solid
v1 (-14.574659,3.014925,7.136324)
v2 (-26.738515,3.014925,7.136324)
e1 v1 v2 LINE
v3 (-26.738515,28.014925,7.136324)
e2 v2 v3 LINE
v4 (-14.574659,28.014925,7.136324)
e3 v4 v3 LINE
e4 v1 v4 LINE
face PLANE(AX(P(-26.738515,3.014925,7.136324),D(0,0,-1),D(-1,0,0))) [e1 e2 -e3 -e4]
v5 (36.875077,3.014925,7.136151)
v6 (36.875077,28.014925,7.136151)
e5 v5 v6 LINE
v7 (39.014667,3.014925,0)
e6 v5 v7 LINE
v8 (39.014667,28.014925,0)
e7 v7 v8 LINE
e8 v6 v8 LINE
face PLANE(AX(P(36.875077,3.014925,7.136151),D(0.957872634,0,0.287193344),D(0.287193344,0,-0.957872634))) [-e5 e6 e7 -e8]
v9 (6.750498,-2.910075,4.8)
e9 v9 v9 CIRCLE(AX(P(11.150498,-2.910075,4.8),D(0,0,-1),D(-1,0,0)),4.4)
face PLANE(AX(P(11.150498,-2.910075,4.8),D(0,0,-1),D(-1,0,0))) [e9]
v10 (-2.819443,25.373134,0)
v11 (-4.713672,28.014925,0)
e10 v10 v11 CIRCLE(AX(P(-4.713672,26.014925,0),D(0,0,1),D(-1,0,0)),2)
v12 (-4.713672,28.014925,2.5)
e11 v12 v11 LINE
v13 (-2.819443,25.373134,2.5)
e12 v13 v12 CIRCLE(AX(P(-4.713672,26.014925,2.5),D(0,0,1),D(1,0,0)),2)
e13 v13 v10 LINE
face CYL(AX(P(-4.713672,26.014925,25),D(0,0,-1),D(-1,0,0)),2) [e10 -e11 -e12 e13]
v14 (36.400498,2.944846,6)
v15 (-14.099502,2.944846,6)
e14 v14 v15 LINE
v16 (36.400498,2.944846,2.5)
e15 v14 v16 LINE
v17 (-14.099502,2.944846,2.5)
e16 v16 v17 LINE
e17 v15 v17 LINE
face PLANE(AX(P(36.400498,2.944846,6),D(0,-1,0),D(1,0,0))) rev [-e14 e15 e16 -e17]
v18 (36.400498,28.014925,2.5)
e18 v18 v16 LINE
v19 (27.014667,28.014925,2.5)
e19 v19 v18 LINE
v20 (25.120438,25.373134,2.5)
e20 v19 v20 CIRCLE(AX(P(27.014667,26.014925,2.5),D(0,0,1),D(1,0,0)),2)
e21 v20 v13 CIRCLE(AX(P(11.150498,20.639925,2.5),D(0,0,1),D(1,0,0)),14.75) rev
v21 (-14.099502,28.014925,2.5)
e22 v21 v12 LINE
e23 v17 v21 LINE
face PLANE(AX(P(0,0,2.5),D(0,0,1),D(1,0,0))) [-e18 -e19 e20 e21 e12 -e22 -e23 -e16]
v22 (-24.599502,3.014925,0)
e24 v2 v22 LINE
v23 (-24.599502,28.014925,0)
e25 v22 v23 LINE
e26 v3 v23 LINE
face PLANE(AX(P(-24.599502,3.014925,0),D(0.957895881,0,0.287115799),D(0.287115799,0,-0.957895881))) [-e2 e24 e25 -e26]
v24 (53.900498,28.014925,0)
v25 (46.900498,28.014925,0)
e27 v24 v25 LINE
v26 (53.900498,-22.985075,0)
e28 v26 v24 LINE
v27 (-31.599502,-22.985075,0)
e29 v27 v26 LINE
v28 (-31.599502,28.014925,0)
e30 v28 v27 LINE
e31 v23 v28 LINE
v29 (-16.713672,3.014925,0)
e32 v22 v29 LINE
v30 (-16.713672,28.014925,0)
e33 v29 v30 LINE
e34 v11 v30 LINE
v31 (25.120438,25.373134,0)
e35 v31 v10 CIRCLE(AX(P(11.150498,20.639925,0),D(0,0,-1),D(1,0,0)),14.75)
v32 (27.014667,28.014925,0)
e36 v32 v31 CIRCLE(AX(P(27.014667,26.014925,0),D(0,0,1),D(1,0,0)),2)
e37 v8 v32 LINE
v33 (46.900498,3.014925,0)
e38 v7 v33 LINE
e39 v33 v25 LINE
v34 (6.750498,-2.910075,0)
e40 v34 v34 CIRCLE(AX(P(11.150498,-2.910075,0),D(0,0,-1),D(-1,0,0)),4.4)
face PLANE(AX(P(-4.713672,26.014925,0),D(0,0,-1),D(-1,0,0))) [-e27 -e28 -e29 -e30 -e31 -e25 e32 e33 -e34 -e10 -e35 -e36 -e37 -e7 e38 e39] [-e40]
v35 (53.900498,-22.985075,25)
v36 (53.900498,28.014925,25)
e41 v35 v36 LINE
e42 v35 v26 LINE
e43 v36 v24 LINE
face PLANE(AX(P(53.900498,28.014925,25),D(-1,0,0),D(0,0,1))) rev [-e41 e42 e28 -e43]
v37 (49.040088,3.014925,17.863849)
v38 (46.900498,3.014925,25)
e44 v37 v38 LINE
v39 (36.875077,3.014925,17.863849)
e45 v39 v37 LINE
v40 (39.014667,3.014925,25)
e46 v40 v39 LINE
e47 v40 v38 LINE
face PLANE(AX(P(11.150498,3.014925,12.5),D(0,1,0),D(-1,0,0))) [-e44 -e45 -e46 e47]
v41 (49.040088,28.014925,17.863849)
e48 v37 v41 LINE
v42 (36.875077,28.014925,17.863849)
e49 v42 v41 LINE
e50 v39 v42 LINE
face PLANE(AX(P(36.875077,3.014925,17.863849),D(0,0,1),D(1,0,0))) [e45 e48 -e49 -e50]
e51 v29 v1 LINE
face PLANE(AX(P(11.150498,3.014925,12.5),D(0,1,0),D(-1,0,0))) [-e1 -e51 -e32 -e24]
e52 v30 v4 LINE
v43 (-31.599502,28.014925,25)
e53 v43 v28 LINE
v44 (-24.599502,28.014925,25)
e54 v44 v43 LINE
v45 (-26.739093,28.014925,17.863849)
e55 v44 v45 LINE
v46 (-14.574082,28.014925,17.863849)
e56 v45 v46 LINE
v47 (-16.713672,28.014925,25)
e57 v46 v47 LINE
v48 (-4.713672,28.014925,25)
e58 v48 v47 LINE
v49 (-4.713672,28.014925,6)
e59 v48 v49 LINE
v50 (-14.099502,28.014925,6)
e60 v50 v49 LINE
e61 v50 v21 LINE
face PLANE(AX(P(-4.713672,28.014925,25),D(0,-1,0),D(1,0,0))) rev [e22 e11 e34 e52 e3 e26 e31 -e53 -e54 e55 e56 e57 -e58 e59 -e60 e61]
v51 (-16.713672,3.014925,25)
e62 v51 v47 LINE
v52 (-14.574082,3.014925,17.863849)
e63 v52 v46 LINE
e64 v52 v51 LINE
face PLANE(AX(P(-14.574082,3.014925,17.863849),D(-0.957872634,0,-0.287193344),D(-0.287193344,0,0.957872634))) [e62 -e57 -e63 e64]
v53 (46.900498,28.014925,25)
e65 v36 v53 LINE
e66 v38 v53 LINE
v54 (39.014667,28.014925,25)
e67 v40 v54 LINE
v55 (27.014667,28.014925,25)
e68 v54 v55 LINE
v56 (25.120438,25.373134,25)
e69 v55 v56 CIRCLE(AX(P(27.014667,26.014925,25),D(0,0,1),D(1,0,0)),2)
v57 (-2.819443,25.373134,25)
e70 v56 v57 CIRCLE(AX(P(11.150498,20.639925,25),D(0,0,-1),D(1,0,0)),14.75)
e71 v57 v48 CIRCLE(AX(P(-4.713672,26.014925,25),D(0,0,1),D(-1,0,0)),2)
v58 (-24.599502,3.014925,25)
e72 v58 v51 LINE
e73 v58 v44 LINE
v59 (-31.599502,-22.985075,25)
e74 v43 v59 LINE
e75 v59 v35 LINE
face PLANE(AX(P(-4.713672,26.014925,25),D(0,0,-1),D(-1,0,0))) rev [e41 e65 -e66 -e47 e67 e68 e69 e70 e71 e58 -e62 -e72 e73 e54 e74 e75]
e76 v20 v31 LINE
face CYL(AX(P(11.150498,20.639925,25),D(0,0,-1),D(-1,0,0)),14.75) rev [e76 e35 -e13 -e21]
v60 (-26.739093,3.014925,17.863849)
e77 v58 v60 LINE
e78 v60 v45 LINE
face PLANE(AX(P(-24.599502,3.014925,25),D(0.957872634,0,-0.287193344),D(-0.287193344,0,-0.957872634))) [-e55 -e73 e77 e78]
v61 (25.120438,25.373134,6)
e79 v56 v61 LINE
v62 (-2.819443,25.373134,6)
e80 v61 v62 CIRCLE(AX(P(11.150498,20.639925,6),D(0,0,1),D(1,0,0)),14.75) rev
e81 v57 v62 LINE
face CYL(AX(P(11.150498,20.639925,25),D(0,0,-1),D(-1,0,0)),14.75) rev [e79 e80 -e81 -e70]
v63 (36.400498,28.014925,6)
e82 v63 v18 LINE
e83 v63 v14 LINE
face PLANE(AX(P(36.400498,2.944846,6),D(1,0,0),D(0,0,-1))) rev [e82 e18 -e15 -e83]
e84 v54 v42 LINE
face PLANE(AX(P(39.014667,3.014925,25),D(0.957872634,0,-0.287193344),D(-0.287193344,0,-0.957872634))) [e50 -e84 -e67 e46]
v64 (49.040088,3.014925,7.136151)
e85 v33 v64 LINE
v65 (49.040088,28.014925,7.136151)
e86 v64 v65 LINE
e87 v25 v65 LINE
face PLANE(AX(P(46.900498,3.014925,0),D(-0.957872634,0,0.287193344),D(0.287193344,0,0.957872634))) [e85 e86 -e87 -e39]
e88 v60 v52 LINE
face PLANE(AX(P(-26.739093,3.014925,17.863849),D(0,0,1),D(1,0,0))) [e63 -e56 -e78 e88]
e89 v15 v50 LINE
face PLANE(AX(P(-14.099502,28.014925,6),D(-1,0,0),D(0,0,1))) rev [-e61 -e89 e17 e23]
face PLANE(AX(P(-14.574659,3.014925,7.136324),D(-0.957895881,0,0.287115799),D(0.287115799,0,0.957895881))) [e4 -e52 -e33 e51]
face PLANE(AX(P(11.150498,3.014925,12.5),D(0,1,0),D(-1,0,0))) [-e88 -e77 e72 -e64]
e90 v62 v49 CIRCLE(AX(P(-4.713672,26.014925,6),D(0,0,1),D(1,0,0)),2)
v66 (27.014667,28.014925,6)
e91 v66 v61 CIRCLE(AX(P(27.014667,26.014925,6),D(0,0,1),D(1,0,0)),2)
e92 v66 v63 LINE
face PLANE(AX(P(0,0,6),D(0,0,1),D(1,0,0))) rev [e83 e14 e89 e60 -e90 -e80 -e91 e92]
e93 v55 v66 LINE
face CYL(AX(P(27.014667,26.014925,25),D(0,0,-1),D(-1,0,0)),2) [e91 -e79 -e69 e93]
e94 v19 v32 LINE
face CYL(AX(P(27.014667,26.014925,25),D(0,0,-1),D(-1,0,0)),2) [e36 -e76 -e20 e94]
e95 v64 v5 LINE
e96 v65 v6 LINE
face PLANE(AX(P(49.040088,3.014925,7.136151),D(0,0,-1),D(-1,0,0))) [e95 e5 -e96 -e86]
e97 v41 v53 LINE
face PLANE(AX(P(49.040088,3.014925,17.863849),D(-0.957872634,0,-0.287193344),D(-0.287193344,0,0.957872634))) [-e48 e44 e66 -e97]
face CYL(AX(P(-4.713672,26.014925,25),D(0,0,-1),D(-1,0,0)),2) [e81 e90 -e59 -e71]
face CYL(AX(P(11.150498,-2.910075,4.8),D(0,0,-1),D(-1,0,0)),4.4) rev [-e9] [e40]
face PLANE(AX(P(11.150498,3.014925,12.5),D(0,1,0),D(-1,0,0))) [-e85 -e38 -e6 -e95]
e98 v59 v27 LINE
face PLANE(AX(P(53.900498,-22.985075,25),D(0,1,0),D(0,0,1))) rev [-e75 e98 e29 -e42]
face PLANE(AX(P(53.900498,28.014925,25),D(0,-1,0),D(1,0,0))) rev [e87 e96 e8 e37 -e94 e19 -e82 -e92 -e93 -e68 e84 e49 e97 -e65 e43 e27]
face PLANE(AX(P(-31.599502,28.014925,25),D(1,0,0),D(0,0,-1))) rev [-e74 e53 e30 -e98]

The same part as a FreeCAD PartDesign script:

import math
import FreeCAD as App
import Part
import Sketcher

V = App.Vector
Q = App.Units.Quantity


def add_polygon(sketch, points):
    """Adds a closed chain of lines whose ends are joined by coincident constraints."""
    first, n = sketch.GeometryCount, len(points)
    for a, b in zip(points, points[1:] + points[:1]):
        sketch.addGeometry(Part.LineSegment(App.Vector(*a, 0), App.Vector(*b, 0)), False)
    for i in range(n):
        sketch.addConstraint(Sketcher.Constraint("Coincident", first + i, 2, first + (i + 1) % n, 1))

doc = App.newDocument("Part")
body = doc.addObject("PartDesign::Body", "Body")

# Sketch on XY plane
sketch1 = body.newObject("Sketcher::SketchObject", "Sketch")
sketch1.AttachmentSupport = (doc.getObject("XY_Plane"), [""])
sketch1.MapMode = "FlatFace"
sketch1.addGeometry([
    Part.LineSegment(V(53.9, 28, 0), V(27, 28, 0)),  # 0
    Part.ArcOfCircle(Part.Circle(V(27, 26, 0), V(0, 0, 1), 2), math.radians(90), math.radians(199)),  # 1
    Part.ArcOfCircle(Part.Circle(V(11.2, 20.6, 0), V(0, 0, 1), 14.8), math.radians(161), math.radians(379)),  # 2
    Part.ArcOfCircle(Part.Circle(V(-4.7, 26, 0), V(0, 0, 1), 2), math.radians(-19), math.radians(90)),  # 3
    Part.LineSegment(V(-4.7, 28, 0), V(-31.6, 28, 0)),  # 4
    Part.LineSegment(V(-31.6, 28, 0), V(-31.6, -23, 0)),  # 5
    Part.LineSegment(V(-31.6, -23, 0), V(53.9, -23, 0)),  # 6
    Part.LineSegment(V(53.9, -23, 0), V(53.9, 28, 0)),  # 7
], False)
sketch1.addConstraint([
    Sketcher.Constraint("Tangent", 0, 2, 1, 1),
    Sketcher.Constraint("Tangent", 1, 2, 2, 2),
    Sketcher.Constraint("Tangent", 2, 1, 3, 1),
    Sketcher.Constraint("Tangent", 3, 2, 4, 1),
    Sketcher.Constraint("Coincident", 4, 2, 5, 1),
    Sketcher.Constraint("Coincident", 5, 2, 6, 1),
    Sketcher.Constraint("Coincident", 6, 2, 7, 1),
    Sketcher.Constraint("Coincident", 7, 2, 0, 1),
    Sketcher.Constraint("Horizontal", 0),
    Sketcher.Constraint("Horizontal", 4),
    Sketcher.Constraint("Vertical", 5),
    Sketcher.Constraint("Horizontal", 6),
    Sketcher.Constraint("Vertical", 7),
    Sketcher.Constraint("Equal", 1, 3),
    Sketcher.Constraint("Horizontal", 1, 3, 3, 3),
    Sketcher.Constraint("Equal", 0, 4),
    Sketcher.Constraint("Radius", 1, Q("2 mm")),
    Sketcher.Constraint("DistanceY", 5, 2, 5, 1, Q("51 mm")),
    Sketcher.Constraint("Radius", 2, Q("14.75 mm")),
    Sketcher.Constraint("DistanceX", 6, 1, 6, 2, Q("85.5 mm")),
    Sketcher.Constraint("DistanceY", 2, 3, 1, 3, Q("5.375 mm")),
    Sketcher.Constraint("DistanceX", -1, 1, 1, 3, Q("27.014667 mm")),
    Sketcher.Constraint("DistanceY", -1, 1, 1, 3, Q("26.014925 mm")),
])
pad1 = body.newObject("PartDesign::Pad", "Pad")
pad1.Profile = sketch1
pad1.Length = 25

# Sketch on XY plane
sketch2 = body.newObject("Sketcher::SketchObject", "Sketch001")
sketch2.AttachmentSupport = (doc.getObject("XY_Plane"), [""])
sketch2.MapMode = "FlatFace"
sketch2.addGeometry(Part.Circle(V(11.2, -2.9, 0), V(0, 0, 1), 4.4), False)
sketch2.addConstraint([
    Sketcher.Constraint("Diameter", 0, Q("8.8 mm")),
    Sketcher.Constraint("DistanceX", -1, 1, 0, 3, Q("11.150498 mm")),
    Sketcher.Constraint("DistanceY", 0, 3, -1, 1, Q("2.910075 mm")),
])
pocket1 = body.newObject("PartDesign::Pocket", "Pocket")
pocket1.Profile = sketch2
pocket1.Length = 4.8
pocket1.Reversed = True

# Sketch on XZ plane
sketch3 = body.newObject("Sketcher::SketchObject", "Sketch002")
sketch3.AttachmentSupport = (doc.getObject("XZ_Plane"), [""])
sketch3.MapMode = "FlatFace"
sketch3.AttachmentOffset = App.Placement(V(0, 0, -28.014925), App.Rotation())
add_polygon(sketch3, [(-43, -11), (-43, 36), (65, 36), (65, -11)])  # lines 0-3
add_polygon(sketch3, [(-32, 0), (-25, 0), (-27, 7), (-15, 7), (-17, 0), (39, 0), (37, 7), (49, 7), (47, 0), (54, 0), (54, 25), (47, 25), (49, 18), (37, 18), (39, 25), (-17, 25), (-15, 18), (-27, 18), (-25, 25), (-32, 25)])  # lines 4-23
sketch3.addConstraint([
    Sketcher.Constraint("Vertical", 0),
    Sketcher.Constraint("Horizontal", 1),
    Sketcher.Constraint("Vertical", 2),
    Sketcher.Constraint("Horizontal", 3),
    Sketcher.Constraint("Horizontal", 4),
    Sketcher.Constraint("Horizontal", 6),
    Sketcher.Constraint("Horizontal", 8),
    Sketcher.Constraint("Horizontal", 10),
    Sketcher.Constraint("Horizontal", 12),
    Sketcher.Constraint("Vertical", 13),
    Sketcher.Constraint("Horizontal", 14),
    Sketcher.Constraint("Horizontal", 16),
    Sketcher.Constraint("Horizontal", 18),
    Sketcher.Constraint("Horizontal", 20),
    Sketcher.Constraint("Horizontal", 22),
    Sketcher.Constraint("Vertical", 23),
    Sketcher.Constraint("PointOnObject", 4, 2, -1),
    Sketcher.Constraint("PointOnObject", 7, 2, -1),
    Sketcher.Constraint("PointOnObject", 11, 2, -1),
    Sketcher.Constraint("Parallel", 9, 15),
    Sketcher.Constraint("Parallel", 11, 17),
    Sketcher.Constraint("Parallel", 15, 19),
    Sketcher.Constraint("Parallel", 17, 21),
    Sketcher.Constraint("Horizontal", 14, 2, 17, 2),
    Sketcher.Constraint("Horizontal", 16, 2, 19, 2),
    Sketcher.Constraint("Horizontal", 18, 2, 21, 2),
    Sketcher.Constraint("Vertical", 11, 2, 14, 2),
    Sketcher.Constraint("Vertical", 10, 2, 15, 2),
    Sketcher.Constraint("Vertical", 9, 2, 16, 2),
    Sketcher.Constraint("Vertical", 8, 2, 17, 2),
    Sketcher.Constraint("Vertical", 7, 2, 18, 2),
    Sketcher.Constraint("Vertical", 4, 2, 21, 2),
    Sketcher.Constraint("Equal", 4, 12),
    Sketcher.Constraint("Equal", 16, 20),
    Sketcher.Constraint("Equal", 5, 7),
    Sketcher.Constraint("Equal", 7, 9),
    Sketcher.Constraint("DistanceX", 4, 1, 4, 2, Q("7 mm")),
    Sketcher.Constraint("DistanceY", 13, 1, 13, 2, Q("25 mm")),
    Sketcher.Constraint("DistanceX", 1, 1, 1, 2, Q("108.03 mm")),
    Sketcher.Constraint("DistanceY", 0, 1, 0, 2, Q("47.53 mm")),
    Sketcher.Constraint("Angle", 9, Q("106.69 deg")),
    Sketcher.Constraint("Distance", 5, Q("7.45 mm")),
    Sketcher.Constraint("DistanceX", 0, 2, -1, 1, Q("42.865 mm")),
    Sketcher.Constraint("DistanceY", -1, 1, 0, 2, Q("36.265 mm")),
    Sketcher.Constraint("DistanceX", 8, 1, 8, 2, Q("55.728339 mm")),
    Sketcher.Constraint("DistanceX", 10, 1, 10, 2, Q("12.165011 mm")),
    Sketcher.Constraint("DistanceX", 6, 1, 6, 2, Q("12.163856 mm")),
    Sketcher.Constraint("DistanceX", 6, 2, -1, 1, Q("14.574659 mm")),
])
pocket2 = body.newObject("PartDesign::Pocket", "Pocket001")
pocket2.Profile = sketch3
pocket2.Length = 25
pocket2.Reversed = True

# Sketch on XY plane
sketch4 = body.newObject("Sketcher::SketchObject", "Sketch003")
sketch4.AttachmentSupport = (doc.getObject("XY_Plane"), [""])
sketch4.MapMode = "FlatFace"
sketch4.AttachmentOffset = App.Placement(V(0, 0, 2.5), App.Rotation())
add_polygon(sketch4, [(36, 28), (36, 3), (-14, 3), (-14, 28)])  # lines 0-3
sketch4.addConstraint([
    Sketcher.Constraint("Vertical", 0),
    Sketcher.Constraint("Horizontal", 1),
    Sketcher.Constraint("Vertical", 2),
    Sketcher.Constraint("Horizontal", 3),
    Sketcher.Constraint("DistanceX", 1, 2, 1, 1, Q("50.5 mm")),
    Sketcher.Constraint("DistanceY", 0, 2, 0, 1, Q("25.07008 mm")),
    Sketcher.Constraint("DistanceX", -1, 1, 0, 2, Q("36.400498 mm")),
    Sketcher.Constraint("DistanceY", -1, 1, 0, 2, Q("2.944846 mm")),
])
pocket3 = body.newObject("PartDesign::Pocket", "Pocket002")
pocket3.Profile = sketch4
pocket3.Length = 3.5
pocket3.Reversed = True

doc.recompute()
